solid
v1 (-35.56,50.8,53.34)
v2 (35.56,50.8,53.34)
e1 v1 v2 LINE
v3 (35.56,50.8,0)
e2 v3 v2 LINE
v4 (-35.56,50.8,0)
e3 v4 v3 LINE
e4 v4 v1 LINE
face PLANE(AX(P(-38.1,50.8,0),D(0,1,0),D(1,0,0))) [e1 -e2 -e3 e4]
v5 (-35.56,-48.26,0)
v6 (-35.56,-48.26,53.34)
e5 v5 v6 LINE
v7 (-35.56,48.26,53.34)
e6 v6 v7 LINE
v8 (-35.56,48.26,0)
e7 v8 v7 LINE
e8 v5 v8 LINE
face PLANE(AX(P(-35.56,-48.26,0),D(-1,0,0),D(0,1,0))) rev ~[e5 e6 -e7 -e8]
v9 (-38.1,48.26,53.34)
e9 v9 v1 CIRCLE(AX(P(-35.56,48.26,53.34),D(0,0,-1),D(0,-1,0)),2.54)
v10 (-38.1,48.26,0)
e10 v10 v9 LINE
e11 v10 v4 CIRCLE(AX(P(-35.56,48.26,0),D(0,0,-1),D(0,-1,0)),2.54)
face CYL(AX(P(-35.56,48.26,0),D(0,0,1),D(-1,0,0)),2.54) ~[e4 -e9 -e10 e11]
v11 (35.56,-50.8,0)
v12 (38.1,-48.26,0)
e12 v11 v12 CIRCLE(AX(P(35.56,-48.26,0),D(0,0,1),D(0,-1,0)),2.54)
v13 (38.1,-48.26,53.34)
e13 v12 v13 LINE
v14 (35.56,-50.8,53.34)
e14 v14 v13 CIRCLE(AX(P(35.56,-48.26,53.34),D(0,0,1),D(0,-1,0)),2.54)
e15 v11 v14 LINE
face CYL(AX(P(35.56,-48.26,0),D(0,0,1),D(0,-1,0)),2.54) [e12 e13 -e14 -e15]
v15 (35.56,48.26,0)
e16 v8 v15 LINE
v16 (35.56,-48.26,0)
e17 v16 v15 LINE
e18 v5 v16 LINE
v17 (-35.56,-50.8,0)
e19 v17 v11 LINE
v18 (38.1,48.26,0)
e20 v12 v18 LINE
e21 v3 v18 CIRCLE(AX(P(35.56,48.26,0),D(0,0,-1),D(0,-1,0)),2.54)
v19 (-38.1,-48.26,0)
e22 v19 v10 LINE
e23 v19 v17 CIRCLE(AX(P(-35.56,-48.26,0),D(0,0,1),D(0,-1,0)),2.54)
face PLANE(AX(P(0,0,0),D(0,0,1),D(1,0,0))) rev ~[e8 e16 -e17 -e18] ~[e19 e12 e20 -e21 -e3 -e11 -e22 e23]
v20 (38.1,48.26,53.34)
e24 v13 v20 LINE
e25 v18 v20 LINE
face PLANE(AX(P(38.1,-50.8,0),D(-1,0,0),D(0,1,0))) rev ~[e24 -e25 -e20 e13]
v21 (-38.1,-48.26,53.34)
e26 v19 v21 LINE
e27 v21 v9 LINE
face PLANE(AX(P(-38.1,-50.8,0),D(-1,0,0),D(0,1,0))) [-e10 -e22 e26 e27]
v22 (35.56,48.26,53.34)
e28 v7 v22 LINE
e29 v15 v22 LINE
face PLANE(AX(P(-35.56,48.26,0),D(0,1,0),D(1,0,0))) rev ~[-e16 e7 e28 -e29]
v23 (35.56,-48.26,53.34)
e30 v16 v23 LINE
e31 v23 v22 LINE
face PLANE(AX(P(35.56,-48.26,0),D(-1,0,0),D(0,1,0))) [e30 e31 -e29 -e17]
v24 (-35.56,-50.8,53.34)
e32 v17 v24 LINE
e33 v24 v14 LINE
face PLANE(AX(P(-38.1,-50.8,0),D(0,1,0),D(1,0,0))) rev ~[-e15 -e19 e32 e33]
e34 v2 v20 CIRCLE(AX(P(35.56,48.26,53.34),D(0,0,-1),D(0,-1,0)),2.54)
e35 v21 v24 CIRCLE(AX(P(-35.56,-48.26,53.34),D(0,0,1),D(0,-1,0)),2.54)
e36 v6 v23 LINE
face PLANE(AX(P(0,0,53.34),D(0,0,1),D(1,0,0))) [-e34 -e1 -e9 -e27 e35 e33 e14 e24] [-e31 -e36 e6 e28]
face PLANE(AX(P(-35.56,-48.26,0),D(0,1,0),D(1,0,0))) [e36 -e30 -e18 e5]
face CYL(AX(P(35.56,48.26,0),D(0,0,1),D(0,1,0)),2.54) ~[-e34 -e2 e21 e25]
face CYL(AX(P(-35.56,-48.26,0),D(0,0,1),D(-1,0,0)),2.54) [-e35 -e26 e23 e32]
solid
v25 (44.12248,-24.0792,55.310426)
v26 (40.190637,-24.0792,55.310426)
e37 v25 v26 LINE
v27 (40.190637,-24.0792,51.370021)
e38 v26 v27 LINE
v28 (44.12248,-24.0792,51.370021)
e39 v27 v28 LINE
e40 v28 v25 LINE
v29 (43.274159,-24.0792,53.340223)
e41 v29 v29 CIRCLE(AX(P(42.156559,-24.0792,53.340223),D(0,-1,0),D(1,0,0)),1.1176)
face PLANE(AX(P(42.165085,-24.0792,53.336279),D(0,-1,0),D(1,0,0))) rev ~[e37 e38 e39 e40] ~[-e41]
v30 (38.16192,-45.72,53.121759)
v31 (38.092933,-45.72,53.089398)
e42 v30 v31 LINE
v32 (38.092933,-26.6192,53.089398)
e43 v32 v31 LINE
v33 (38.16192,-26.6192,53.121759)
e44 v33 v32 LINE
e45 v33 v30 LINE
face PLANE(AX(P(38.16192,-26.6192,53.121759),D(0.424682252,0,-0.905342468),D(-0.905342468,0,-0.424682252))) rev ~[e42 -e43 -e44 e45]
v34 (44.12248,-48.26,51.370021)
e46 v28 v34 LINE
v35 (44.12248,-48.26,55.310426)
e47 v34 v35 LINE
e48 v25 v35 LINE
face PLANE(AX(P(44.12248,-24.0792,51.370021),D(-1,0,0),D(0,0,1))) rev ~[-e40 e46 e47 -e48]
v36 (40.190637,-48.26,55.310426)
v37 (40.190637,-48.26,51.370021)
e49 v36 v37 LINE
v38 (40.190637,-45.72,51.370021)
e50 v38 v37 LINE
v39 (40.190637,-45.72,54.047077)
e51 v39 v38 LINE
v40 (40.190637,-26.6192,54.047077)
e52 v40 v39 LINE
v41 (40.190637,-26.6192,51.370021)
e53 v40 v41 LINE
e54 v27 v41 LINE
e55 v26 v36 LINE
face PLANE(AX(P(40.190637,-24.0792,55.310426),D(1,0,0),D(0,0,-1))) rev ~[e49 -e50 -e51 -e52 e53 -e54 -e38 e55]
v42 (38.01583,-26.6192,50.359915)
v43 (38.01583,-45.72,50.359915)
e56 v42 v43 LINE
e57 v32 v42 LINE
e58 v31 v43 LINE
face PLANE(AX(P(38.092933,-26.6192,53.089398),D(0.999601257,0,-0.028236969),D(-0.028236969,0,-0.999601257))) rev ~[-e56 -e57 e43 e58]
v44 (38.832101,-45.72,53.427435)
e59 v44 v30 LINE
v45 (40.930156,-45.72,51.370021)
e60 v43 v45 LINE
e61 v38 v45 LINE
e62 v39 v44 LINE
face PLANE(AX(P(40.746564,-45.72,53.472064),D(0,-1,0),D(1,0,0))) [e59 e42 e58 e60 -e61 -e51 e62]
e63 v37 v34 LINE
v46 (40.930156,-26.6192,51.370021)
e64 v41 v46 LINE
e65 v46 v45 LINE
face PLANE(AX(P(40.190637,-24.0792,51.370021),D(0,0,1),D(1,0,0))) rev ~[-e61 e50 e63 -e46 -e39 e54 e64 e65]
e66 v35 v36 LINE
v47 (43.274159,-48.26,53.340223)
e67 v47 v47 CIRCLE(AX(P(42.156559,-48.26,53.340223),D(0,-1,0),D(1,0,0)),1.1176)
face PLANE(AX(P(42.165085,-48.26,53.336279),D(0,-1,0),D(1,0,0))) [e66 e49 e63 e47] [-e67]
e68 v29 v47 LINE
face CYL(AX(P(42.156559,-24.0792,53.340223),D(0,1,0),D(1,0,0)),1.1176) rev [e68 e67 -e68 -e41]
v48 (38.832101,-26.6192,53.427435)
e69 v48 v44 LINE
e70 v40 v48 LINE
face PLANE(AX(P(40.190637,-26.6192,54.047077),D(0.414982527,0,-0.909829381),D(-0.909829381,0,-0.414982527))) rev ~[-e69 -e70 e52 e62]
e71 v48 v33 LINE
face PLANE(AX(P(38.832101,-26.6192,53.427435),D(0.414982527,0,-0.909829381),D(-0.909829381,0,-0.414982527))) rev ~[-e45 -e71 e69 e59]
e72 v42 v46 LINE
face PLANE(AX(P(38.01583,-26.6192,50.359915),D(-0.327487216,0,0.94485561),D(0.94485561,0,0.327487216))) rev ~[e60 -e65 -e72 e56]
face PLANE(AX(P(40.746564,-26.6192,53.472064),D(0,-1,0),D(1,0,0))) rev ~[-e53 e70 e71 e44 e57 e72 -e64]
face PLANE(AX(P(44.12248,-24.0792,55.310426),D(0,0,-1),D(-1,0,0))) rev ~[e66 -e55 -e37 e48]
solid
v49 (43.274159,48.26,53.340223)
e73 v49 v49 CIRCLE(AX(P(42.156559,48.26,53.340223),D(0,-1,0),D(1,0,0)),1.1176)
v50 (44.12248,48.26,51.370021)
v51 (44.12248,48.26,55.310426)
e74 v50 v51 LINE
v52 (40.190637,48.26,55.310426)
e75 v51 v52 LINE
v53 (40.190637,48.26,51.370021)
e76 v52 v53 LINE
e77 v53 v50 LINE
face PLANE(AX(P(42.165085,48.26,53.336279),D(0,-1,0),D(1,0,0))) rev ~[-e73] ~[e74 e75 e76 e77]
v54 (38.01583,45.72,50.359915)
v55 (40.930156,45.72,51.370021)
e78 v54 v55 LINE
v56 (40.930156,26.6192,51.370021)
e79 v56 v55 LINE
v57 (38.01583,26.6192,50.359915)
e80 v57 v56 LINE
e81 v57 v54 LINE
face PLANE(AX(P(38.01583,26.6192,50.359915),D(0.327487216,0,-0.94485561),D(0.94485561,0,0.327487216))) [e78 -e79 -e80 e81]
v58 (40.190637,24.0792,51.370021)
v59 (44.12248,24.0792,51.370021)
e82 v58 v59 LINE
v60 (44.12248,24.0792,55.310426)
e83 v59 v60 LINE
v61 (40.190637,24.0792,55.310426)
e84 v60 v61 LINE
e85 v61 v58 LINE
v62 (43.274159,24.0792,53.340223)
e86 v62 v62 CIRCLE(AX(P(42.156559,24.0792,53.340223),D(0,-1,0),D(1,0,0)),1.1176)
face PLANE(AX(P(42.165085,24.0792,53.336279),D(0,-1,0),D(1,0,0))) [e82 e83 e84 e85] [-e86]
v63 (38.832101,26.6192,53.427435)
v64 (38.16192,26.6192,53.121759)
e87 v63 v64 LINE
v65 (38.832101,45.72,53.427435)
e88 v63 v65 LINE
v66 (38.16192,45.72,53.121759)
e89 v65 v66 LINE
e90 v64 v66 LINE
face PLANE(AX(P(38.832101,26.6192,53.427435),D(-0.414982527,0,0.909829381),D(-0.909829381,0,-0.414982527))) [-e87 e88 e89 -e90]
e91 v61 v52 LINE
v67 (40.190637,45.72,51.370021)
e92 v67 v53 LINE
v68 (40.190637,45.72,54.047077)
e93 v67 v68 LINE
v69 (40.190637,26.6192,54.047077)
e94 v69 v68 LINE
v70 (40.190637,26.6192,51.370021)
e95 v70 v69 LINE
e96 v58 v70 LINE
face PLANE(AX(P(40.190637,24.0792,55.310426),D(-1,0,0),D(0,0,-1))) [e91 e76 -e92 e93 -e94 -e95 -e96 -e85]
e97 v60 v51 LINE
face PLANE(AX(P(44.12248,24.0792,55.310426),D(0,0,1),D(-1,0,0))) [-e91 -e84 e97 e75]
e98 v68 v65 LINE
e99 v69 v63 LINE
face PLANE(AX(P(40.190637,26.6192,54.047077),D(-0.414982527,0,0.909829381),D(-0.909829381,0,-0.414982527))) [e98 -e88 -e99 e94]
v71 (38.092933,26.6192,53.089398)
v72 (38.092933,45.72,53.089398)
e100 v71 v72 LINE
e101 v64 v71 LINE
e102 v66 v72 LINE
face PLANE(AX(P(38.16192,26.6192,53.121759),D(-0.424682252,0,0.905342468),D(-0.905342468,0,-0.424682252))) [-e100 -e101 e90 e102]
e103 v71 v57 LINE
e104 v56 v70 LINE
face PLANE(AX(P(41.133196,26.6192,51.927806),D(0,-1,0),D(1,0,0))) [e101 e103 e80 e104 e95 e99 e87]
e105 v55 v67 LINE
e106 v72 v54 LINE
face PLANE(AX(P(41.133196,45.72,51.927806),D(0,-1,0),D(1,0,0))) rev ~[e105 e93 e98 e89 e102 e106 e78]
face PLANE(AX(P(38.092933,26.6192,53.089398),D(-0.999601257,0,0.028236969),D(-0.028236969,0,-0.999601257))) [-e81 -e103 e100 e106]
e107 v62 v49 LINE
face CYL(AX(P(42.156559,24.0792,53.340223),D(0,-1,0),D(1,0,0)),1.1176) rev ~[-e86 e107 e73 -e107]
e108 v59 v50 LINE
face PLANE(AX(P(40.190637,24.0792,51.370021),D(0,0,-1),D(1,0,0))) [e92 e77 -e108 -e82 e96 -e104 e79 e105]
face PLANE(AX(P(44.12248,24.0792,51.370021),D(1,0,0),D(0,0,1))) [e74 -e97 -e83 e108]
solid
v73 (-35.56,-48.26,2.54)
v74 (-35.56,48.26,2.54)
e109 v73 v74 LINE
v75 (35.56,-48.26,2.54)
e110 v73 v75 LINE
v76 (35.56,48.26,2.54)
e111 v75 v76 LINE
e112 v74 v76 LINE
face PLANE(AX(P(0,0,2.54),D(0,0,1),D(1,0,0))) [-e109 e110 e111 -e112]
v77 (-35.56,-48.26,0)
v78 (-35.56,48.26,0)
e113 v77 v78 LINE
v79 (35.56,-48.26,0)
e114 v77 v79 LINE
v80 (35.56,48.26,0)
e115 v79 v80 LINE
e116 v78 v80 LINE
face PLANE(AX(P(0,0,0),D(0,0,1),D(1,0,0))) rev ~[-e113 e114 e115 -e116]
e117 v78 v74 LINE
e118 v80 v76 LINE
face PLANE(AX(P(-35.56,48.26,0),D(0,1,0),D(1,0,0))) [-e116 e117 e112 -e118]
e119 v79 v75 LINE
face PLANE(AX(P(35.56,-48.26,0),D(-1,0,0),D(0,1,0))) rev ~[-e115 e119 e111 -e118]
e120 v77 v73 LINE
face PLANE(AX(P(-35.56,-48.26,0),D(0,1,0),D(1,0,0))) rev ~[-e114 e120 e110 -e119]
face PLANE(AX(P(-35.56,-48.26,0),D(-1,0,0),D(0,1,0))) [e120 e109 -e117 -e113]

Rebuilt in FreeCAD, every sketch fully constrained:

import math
import FreeCAD as App
import Part
import Sketcher
from FreeCAD import Vector
Q = App.Units.Quantity


def edges_at(feature, points):
    """Names of the edges that pass closest to the given points."""
    edges = feature.Shape.Edges
    near = lambda p: min(range(len(edges)), key=lambda i: edges[i].distToShape(Part.Vertex(*p))[0])
    return sorted({f"Edge{near(p) + 1}" for p in points})


def add_polygon(sketch, points):
    """Adds a closed chain of lines whose ends are joined by coincident constraints."""
    first, n = sketch.GeometryCount, len(points)
    for a, b in zip(points, points[1:] + points[:1]):
        sketch.addGeometry(Part.LineSegment(App.Vector(*a, 0), App.Vector(*b, 0)), False)
    for i in range(n):
        sketch.addConstraint(Sketcher.Constraint("Coincident", first + i, 2, first + (i + 1) % n, 1))

doc = App.newDocument("Part")
body = doc.addObject("PartDesign::Body", "Body")

sketch1 = doc.addObject("Sketcher::SketchObject", "Sketch")
body.addObject(sketch1)
sketch1.AttachmentSupport = (doc.XY_Plane, [""])
sketch1.MapMode = "FlatFace"
add_polygon(sketch1, [(-38.1, 50.8), (-38.1, -50.8), (38.1, -50.8), (38.1, 50.8)])
add_polygon(sketch1, [(35.56, -48.26), (-35.56, -48.26), (-35.56, 48.26), (35.56, 48.26)])
sketch1.addConstraint([
    Sketcher.Constraint("Vertical", 0),
    Sketcher.Constraint("Horizontal", 1),
    Sketcher.Constraint("Vertical", 2),
    Sketcher.Constraint("Horizontal", 3),
    Sketcher.Constraint("Horizontal", 4),
    Sketcher.Constraint("Vertical", 5),
    Sketcher.Constraint("Horizontal", 6),
    Sketcher.Constraint("Vertical", 7),
    Sketcher.Constraint("Symmetric", 0, 2, 2, 2, -1, 1),
    Sketcher.Constraint("Symmetric", 4, 2, 6, 2, -1, 1),
    Sketcher.Constraint("DistanceX", 1, 1, 1, 2, Q("3 in")),
    Sketcher.Constraint("DistanceY", 0, 2, 0, 1, Q("4 in")),
    Sketcher.Constraint("DistanceX", 4, 2, 4, 1, Q("2.8 in")),
    Sketcher.Constraint("DistanceY", 5, 1, 5, 2, Q("3.8 in")),
])
pad1 = doc.addObject("PartDesign::Pad", "Pad")
body.addObject(pad1)
pad1.Profile = sketch1
pad1.Length = Q("2.1 in")
doc.recompute()

fillet = doc.addObject("PartDesign::Fillet", "Fillet")
body.addObject(fillet)
fillet.Base = (pad1, edges_at(pad1, [
    (38.1, 50.8, 26.67),
    (38.1, -50.8, 26.67),
    (-38.1, 50.8, 26.67),
    (-38.1, -50.8, 26.67),
]))
fillet.Radius = Q("0.1 in")
body2 = doc.addObject("PartDesign::Body", "Body001")

sketch2 = doc.addObject("Sketcher::SketchObject", "Sketch001")
body2.addObject(sketch2)
sketch2.AttachmentSupport = (doc.getObject("XY_Plane001"), [""])
sketch2.MapMode = "FlatFace"
add_polygon(sketch2, [(-35.56, 48.26), (-35.56, -48.26), (35.56, -48.26), (35.56, 48.26)])
sketch2.addConstraint([
    Sketcher.Constraint("Vertical", 0),
    Sketcher.Constraint("Horizontal", 1),
    Sketcher.Constraint("Vertical", 2),
    Sketcher.Constraint("Horizontal", 3),
    Sketcher.Constraint("Symmetric", 0, 2, 2, 2, -1, 1),
    Sketcher.Constraint("DistanceX", 1, 1, 1, 2, Q("2.8 in")),
    Sketcher.Constraint("DistanceY", 0, 2, 0, 1, Q("3.8 in")),
])
pad2 = doc.addObject("PartDesign::Pad", "Pad001")
body2.addObject(pad2)
pad2.Profile = sketch2
pad2.Length = Q("0.1 in")
body3 = doc.addObject("PartDesign::Body", "Body002")

sketch3 = doc.addObject("Sketcher::SketchObject", "Sketch002")
body3.addObject(sketch3)
sketch3.AttachmentSupport = (doc.getObject("XZ_Plane002"), [""])
sketch3.MapMode = "FlatFace"
sketch3.AttachmentOffset = App.Placement(Vector(0, 0, 0.948 * 25.4), App.Rotation())
add_polygon(sketch3, [(40.190637, 51.370021), (44.12248, 51.370021), (44.12248, 55.310426), (40.190637, 55.310426)])
sketch3.addGeometry(Part.Circle(Vector(42.156559, 53.340223, 0), Vector(0, 0, 1), 1.1176), False)
sketch3.addConstraint([
    Sketcher.Constraint("Horizontal", 0),
    Sketcher.Constraint("Vertical", 1),
    Sketcher.Constraint("Horizontal", 2),
    Sketcher.Constraint("Vertical", 3),
    Sketcher.Constraint("Diameter", 4, Q("0.088 in")),
    Sketcher.Constraint("DistanceX", 0, 1, 0, 2, 3.931843),
    Sketcher.Constraint("DistanceY", 1, 1, 1, 2, 3.940405),
    Sketcher.Constraint("DistanceX", -1, 1, 4, 3, 42.156559),
    Sketcher.Constraint("DistanceX", -1, 1, 0, 2, 44.12248),
    Sketcher.Constraint("DistanceY", -1, 1, 0, 2, 51.370021),
    Sketcher.Constraint("DistanceY", -1, 1, 4, 3, 53.340223),
])
pad3 = doc.addObject("PartDesign::Pad", "Pad002")
body3.addObject(pad3)
pad3.Profile = sketch3
pad3.Length = Q("0.952 in")

sketch4 = doc.addObject("Sketcher::SketchObject", "Sketch003")
body3.addObject(sketch4)
sketch4.AttachmentSupport = (doc.getObject("XZ_Plane002"), [""])
sketch4.MapMode = "FlatFace"
sketch4.AttachmentOffset = App.Placement(Vector(0, 0, 1.048 * 25.4), App.Rotation())
sketch4.addGeometry([
    Part.LineSegment(Vector(41.489712, 54.639599, 0), Vector(40.190637, 54.047077, 0)),
    Part.LineSegment(Vector(40.190637, 54.047077, 0), Vector(38.832101, 53.427435, 0)),
    Part.LineSegment(Vector(38.832101, 53.427435, 0), Vector(38.16192, 53.121759, 0)),
    Part.LineSegment(Vector(38.16192, 53.121759, 0), Vector(38.092933, 53.089398, 0)),
    Part.LineSegment(Vector(38.092933, 53.089398, 0), Vector(38.01583, 50.359915, 0)),
    Part.LineSegment(Vector(38.01583, 50.359915, 0), Vector(40.930156, 51.370021, 0)),
    Part.LineSegment(Vector(40.930156, 51.370021, 0), Vector(42.595969, 51.947392, 0)),
    Part.ArcOfCircle(Part.Circle(Vector(42.156559, 53.340223, 0), Vector(0, 0, 1), 1.4605), math.radians(-129.928801), math.radians(-72.490557)),
    Part.ArcOfCircle(Part.Circle(Vector(42.156559, 53.340223, 0), Vector(0, 0, 1), 1.4605), math.radians(117.167125), math.radians(230.071199)),
], False)
sketch4.addConstraint([
    Sketcher.Constraint("Coincident", 0, 2, 1, 1),
    Sketcher.Constraint("Coincident", 1, 2, 2, 1),
    Sketcher.Constraint("Coincident", 2, 2, 3, 1),
    Sketcher.Constraint("Coincident", 3, 2, 4, 1),
    Sketcher.Constraint("Coincident", 4, 2, 5, 1),
    Sketcher.Constraint("Coincident", 5, 2, 6, 1),
    Sketcher.Constraint("Coincident", 6, 2, 7, 2),
    Sketcher.Constraint("Tangent", 7, 1, 8, 2),
    Sketcher.Constraint("Coincident", 8, 1, 0, 1),
    Sketcher.Constraint("Equal", 7, 8),
    Sketcher.Constraint("Parallel", 0, 1),
    Sketcher.Constraint("Parallel", 1, 2),
    Sketcher.Constraint("Parallel", 5, 6),
    Sketcher.Constraint("Radius", 7, Q("0.0575 in")),
    Sketcher.Constraint("Distance", 2, Q("0.029 in")),
    Sketcher.Constraint("Distance", 3, Q("0.003 in")),
    Sketcher.Constraint("DistanceX", -1, 1, 1, 2, 38.832101),
    Sketcher.Constraint("DistanceY", -1, 1, 8, 1, 54.639599),
    Sketcher.Constraint("DistanceX", 5, 2, 7, 1, 0.289002),
    Sketcher.Constraint("DistanceX", 7, 1, 7, 3, 0.9374),
    Sketcher.Constraint("Distance", 4, 2.730572),
    Sketcher.Constraint("DistanceX", -1, 1, 7, 3, 42.156559),
    Sketcher.Constraint("DistanceX", -1, 1, 2, 2, 38.16192),
    Sketcher.Constraint("DistanceY", -1, 1, 2, 2, 53.121759),
    Sketcher.Constraint("DistanceX", -1, 1, 4, 2, 38.01583),
    Sketcher.Constraint("DistanceY", -1, 1, 5, 2, 51.370021),
    Sketcher.Constraint("DistanceX", -1, 1, 6, 2, 42.595969),
    Sketcher.Constraint("DistanceX", 0, 2, 7, 3, 1.965921),
])
pad4 = doc.addObject("PartDesign::Pad", "Pad003")
body3.addObject(pad4)
pad4.Profile = sketch4
pad4.Length = Q("0.752 in")
body4 = doc.addObject("PartDesign::Body", "Body003")

sketch5 = doc.addObject("Sketcher::SketchObject", "Sketch004")
body4.addObject(sketch5)
sketch5.AttachmentSupport = (doc.getObject("XZ_Plane003"), [""])
sketch5.MapMode = "FlatFace"
sketch5.AttachmentOffset = App.Placement(Vector(0, 0, -0.948 * 25.4), App.Rotation())
add_polygon(sketch5, [(44.12248, 51.370021), (44.12248, 55.310426), (40.190637, 55.310426), (40.190637, 51.370021)])
sketch5.addGeometry(Part.Circle(Vector(42.156559, 53.340223, 0), Vector(0, 0, 1), 1.1176), False)
sketch5.addConstraint([
    Sketcher.Constraint("Vertical", 0),
    Sketcher.Constraint("Horizontal", 1),
    Sketcher.Constraint("Vertical", 2),
    Sketcher.Constraint("Horizontal", 3),
    Sketcher.Constraint("Diameter", 4, Q("0.088 in")),
    Sketcher.Constraint("DistanceX", 1, 2, 1, 1, 3.931843),
    Sketcher.Constraint("DistanceY", 0, 1, 0, 2, 3.940405),
    Sketcher.Constraint("DistanceX", -1, 1, 4, 3, 42.156559),
    Sketcher.Constraint("DistanceX", -1, 1, 0, 2, 44.12248),
    Sketcher.Constraint("DistanceY", -1, 1, 2, 2, 51.370021),
    Sketcher.Constraint("DistanceY", -1, 1, 4, 3, 53.340223),
])
pad5 = doc.addObject("PartDesign::Pad", "Pad004")
body4.addObject(pad5)
pad5.Profile = sketch5
pad5.Length = Q("0.952 in")
pad5.Reversed = True

sketch6 = doc.addObject("Sketcher::SketchObject", "Sketch005")
body4.addObject(sketch6)
sketch6.AttachmentSupport = (doc.getObject("XZ_Plane003"), [""])
sketch6.MapMode = "FlatFace"
sketch6.AttachmentOffset = App.Placement(Vector(0, 0, -1.048 * 25.4), App.Rotation())
sketch6.addGeometry([
    Part.LineSegment(Vector(41.489712, 54.639599, 0), Vector(40.190637, 54.047077, 0)),
    Part.LineSegment(Vector(40.190637, 54.047077, 0), Vector(38.832101, 53.427435, 0)),
    Part.LineSegment(Vector(38.832101, 53.427435, 0), Vector(38.16192, 53.121759, 0)),
    Part.LineSegment(Vector(38.16192, 53.121759, 0), Vector(38.092933, 53.089398, 0)),
    Part.LineSegment(Vector(38.092933, 53.089398, 0), Vector(38.01583, 50.359915, 0)),
    Part.LineSegment(Vector(38.01583, 50.359915, 0), Vector(40.930156, 51.370021, 0)),
    Part.LineSegment(Vector(40.930156, 51.370021, 0), Vector(42.595969, 51.947392, 0)),
    Part.ArcOfCircle(Part.Circle(Vector(42.156559, 53.340223, 0), Vector(0, 0, 1), 1.4605), math.radians(-129.928801), math.radians(-72.490557)),
    Part.ArcOfCircle(Part.Circle(Vector(42.156559, 53.340223, 0), Vector(0, 0, 1), 1.4605), math.radians(117.167125), math.radians(230.071199)),
], False)
sketch6.addConstraint([
    Sketcher.Constraint("Coincident", 0, 2, 1, 1),
    Sketcher.Constraint("Coincident", 1, 2, 2, 1),
    Sketcher.Constraint("Coincident", 2, 2, 3, 1),
    Sketcher.Constraint("Coincident", 3, 2, 4, 1),
    Sketcher.Constraint("Coincident", 4, 2, 5, 1),
    Sketcher.Constraint("Coincident", 5, 2, 6, 1),
    Sketcher.Constraint("Coincident", 6, 2, 7, 2),
    Sketcher.Constraint("Tangent", 7, 1, 8, 2),
    Sketcher.Constraint("Coincident", 8, 1, 0, 1),
    Sketcher.Constraint("Equal", 7, 8),
    Sketcher.Constraint("Parallel", 0, 1),
    Sketcher.Constraint("Parallel", 1, 2),
    Sketcher.Constraint("Parallel", 5, 6),
    Sketcher.Constraint("Radius", 7, Q("0.0575 in")),
    Sketcher.Constraint("Distance", 2, Q("0.029 in")),
    Sketcher.Constraint("Distance", 3, Q("0.003 in")),
    Sketcher.Constraint("DistanceX", -1, 1, 1, 2, 38.832101),
    Sketcher.Constraint("DistanceY", -1, 1, 8, 1, 54.639599),
    Sketcher.Constraint("DistanceX", 5, 2, 7, 1, 0.289002),
    Sketcher.Constraint("DistanceX", 7, 1, 7, 3, 0.9374),
    Sketcher.Constraint("Distance", 4, 2.730572),
    Sketcher.Constraint("DistanceX", -1, 1, 7, 3, 42.156559),
    Sketcher.Constraint("DistanceX", -1, 1, 2, 2, 38.16192),
    Sketcher.Constraint("DistanceY", -1, 1, 2, 2, 53.121759),
    Sketcher.Constraint("DistanceX", -1, 1, 4, 2, 38.01583),
    Sketcher.Constraint("DistanceY", -1, 1, 5, 2, 51.370021),
    Sketcher.Constraint("DistanceX", -1, 1, 6, 2, 42.595969),
    Sketcher.Constraint("DistanceX", 0, 2, 7, 3, 1.965921),
])
pad6 = doc.addObject("PartDesign::Pad", "Pad005")
body4.addObject(pad6)
pad6.Profile = sketch6
pad6.Length = Q("0.752 in")
pad6.Reversed = True

doc.recompute()
